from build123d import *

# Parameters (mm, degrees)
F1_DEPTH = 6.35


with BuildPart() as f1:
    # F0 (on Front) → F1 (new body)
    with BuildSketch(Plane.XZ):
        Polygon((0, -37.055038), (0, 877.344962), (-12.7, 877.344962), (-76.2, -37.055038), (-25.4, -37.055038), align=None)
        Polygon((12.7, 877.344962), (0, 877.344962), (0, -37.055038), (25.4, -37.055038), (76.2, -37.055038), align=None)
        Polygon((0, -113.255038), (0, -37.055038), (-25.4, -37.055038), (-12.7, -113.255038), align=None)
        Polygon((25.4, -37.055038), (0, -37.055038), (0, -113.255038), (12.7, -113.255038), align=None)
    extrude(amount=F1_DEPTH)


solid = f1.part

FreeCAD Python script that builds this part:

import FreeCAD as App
import Part
import Sketcher

V = App.Vector
Q = App.Units.Quantity

doc = App.newDocument("Part")
body = doc.addObject("PartDesign::Body", "Body")

# Sketch on XZ plane
sketch1 = body.newObject("Sketcher::SketchObject", "Sketch")
sketch1.AttachmentSupport = (doc.getObject("XZ_Plane"), [""])
sketch1.MapMode = "FlatFace"
sketch1.addGeometry(Part.LineSegment(V(-13, 877, 0), V(-76, -37, 0)), False)
sketch1.addGeometry(Part.LineSegment(V(-76, -37, 0), V(-25, -37, 0)), False)
sketch1.addGeometry(Part.LineSegment(V(-25, -37, 0), V(-13, -113, 0)), False)
sketch1.addGeometry(Part.LineSegment(V(-13, -113, 0), V(13, -113, 0)), False)
sketch1.addGeometry(Part.LineSegment(V(13, -113, 0), V(25, -37, 0)), False)
sketch1.addGeometry(Part.LineSegment(V(25, -37, 0), V(76, -37, 0)), False)
sketch1.addGeometry(Part.LineSegment(V(76, -37, 0), V(13, 877, 0)), False)
sketch1.addGeometry(Part.LineSegment(V(13, 877, 0), V(-13, 877, 0)), False)
sketch1.addConstraint(Sketcher.Constraint("Coincident", 0, 2, 1, 1))
sketch1.addConstraint(Sketcher.Constraint("Coincident", 1, 2, 2, 1))
sketch1.addConstraint(Sketcher.Constraint("Coincident", 2, 2, 3, 1))
sketch1.addConstraint(Sketcher.Constraint("Coincident", 3, 2, 4, 1))
sketch1.addConstraint(Sketcher.Constraint("Coincident", 4, 2, 5, 1))
sketch1.addConstraint(Sketcher.Constraint("Coincident", 5, 2, 6, 1))
sketch1.addConstraint(Sketcher.Constraint("Coincident", 6, 2, 7, 1))
sketch1.addConstraint(Sketcher.Constraint("Coincident", 7, 2, 0, 1))
sketch1.addConstraint(Sketcher.Constraint("Horizontal", 1))
sketch1.addConstraint(Sketcher.Constraint("Horizontal", 3))
sketch1.addConstraint(Sketcher.Constraint("Horizontal", 5))
sketch1.addConstraint(Sketcher.Constraint("Horizontal", 7))
sketch1.addConstraint(Sketcher.Constraint("Symmetric", 1, 2, 4, 2, -2))
sketch1.addConstraint(Sketcher.Constraint("Vertical", 3, 2, 6, 2))
sketch1.addConstraint(Sketcher.Constraint("Vertical", 2, 2, 7, 2))
sketch1.addConstraint(Sketcher.Constraint("Equal", 1, 5))
sketch1.addConstraint(Sketcher.Constraint("Equal", 2, 4))
sketch1.addConstraint(Sketcher.Constraint("DistanceX", 1, 1, 1, 2, Q("2 in")))
sketch1.addConstraint(Sketcher.Constraint("DistanceX", 3, 1, 3, 2, Q("1 in")))
sketch1.addConstraint(Sketcher.Constraint("DistanceX", 0, 2, -1, 1, Q("3 in")))
sketch1.addConstraint(Sketcher.Constraint("DistanceY", 2, 2, 1, 2, Q("3 in")))
sketch1.addConstraint(Sketcher.Constraint("DistanceY", 4, 2, 6, 2, Q("36 in")))
sketch1.addConstraint(Sketcher.Constraint("DistanceY", 0, 2, -1, 1, 37.055038))
pad1 = body.newObject("PartDesign::Pad", "Pad")
pad1.Profile = sketch1
pad1.Length = Q("0.25 in")

doc.recompute()
